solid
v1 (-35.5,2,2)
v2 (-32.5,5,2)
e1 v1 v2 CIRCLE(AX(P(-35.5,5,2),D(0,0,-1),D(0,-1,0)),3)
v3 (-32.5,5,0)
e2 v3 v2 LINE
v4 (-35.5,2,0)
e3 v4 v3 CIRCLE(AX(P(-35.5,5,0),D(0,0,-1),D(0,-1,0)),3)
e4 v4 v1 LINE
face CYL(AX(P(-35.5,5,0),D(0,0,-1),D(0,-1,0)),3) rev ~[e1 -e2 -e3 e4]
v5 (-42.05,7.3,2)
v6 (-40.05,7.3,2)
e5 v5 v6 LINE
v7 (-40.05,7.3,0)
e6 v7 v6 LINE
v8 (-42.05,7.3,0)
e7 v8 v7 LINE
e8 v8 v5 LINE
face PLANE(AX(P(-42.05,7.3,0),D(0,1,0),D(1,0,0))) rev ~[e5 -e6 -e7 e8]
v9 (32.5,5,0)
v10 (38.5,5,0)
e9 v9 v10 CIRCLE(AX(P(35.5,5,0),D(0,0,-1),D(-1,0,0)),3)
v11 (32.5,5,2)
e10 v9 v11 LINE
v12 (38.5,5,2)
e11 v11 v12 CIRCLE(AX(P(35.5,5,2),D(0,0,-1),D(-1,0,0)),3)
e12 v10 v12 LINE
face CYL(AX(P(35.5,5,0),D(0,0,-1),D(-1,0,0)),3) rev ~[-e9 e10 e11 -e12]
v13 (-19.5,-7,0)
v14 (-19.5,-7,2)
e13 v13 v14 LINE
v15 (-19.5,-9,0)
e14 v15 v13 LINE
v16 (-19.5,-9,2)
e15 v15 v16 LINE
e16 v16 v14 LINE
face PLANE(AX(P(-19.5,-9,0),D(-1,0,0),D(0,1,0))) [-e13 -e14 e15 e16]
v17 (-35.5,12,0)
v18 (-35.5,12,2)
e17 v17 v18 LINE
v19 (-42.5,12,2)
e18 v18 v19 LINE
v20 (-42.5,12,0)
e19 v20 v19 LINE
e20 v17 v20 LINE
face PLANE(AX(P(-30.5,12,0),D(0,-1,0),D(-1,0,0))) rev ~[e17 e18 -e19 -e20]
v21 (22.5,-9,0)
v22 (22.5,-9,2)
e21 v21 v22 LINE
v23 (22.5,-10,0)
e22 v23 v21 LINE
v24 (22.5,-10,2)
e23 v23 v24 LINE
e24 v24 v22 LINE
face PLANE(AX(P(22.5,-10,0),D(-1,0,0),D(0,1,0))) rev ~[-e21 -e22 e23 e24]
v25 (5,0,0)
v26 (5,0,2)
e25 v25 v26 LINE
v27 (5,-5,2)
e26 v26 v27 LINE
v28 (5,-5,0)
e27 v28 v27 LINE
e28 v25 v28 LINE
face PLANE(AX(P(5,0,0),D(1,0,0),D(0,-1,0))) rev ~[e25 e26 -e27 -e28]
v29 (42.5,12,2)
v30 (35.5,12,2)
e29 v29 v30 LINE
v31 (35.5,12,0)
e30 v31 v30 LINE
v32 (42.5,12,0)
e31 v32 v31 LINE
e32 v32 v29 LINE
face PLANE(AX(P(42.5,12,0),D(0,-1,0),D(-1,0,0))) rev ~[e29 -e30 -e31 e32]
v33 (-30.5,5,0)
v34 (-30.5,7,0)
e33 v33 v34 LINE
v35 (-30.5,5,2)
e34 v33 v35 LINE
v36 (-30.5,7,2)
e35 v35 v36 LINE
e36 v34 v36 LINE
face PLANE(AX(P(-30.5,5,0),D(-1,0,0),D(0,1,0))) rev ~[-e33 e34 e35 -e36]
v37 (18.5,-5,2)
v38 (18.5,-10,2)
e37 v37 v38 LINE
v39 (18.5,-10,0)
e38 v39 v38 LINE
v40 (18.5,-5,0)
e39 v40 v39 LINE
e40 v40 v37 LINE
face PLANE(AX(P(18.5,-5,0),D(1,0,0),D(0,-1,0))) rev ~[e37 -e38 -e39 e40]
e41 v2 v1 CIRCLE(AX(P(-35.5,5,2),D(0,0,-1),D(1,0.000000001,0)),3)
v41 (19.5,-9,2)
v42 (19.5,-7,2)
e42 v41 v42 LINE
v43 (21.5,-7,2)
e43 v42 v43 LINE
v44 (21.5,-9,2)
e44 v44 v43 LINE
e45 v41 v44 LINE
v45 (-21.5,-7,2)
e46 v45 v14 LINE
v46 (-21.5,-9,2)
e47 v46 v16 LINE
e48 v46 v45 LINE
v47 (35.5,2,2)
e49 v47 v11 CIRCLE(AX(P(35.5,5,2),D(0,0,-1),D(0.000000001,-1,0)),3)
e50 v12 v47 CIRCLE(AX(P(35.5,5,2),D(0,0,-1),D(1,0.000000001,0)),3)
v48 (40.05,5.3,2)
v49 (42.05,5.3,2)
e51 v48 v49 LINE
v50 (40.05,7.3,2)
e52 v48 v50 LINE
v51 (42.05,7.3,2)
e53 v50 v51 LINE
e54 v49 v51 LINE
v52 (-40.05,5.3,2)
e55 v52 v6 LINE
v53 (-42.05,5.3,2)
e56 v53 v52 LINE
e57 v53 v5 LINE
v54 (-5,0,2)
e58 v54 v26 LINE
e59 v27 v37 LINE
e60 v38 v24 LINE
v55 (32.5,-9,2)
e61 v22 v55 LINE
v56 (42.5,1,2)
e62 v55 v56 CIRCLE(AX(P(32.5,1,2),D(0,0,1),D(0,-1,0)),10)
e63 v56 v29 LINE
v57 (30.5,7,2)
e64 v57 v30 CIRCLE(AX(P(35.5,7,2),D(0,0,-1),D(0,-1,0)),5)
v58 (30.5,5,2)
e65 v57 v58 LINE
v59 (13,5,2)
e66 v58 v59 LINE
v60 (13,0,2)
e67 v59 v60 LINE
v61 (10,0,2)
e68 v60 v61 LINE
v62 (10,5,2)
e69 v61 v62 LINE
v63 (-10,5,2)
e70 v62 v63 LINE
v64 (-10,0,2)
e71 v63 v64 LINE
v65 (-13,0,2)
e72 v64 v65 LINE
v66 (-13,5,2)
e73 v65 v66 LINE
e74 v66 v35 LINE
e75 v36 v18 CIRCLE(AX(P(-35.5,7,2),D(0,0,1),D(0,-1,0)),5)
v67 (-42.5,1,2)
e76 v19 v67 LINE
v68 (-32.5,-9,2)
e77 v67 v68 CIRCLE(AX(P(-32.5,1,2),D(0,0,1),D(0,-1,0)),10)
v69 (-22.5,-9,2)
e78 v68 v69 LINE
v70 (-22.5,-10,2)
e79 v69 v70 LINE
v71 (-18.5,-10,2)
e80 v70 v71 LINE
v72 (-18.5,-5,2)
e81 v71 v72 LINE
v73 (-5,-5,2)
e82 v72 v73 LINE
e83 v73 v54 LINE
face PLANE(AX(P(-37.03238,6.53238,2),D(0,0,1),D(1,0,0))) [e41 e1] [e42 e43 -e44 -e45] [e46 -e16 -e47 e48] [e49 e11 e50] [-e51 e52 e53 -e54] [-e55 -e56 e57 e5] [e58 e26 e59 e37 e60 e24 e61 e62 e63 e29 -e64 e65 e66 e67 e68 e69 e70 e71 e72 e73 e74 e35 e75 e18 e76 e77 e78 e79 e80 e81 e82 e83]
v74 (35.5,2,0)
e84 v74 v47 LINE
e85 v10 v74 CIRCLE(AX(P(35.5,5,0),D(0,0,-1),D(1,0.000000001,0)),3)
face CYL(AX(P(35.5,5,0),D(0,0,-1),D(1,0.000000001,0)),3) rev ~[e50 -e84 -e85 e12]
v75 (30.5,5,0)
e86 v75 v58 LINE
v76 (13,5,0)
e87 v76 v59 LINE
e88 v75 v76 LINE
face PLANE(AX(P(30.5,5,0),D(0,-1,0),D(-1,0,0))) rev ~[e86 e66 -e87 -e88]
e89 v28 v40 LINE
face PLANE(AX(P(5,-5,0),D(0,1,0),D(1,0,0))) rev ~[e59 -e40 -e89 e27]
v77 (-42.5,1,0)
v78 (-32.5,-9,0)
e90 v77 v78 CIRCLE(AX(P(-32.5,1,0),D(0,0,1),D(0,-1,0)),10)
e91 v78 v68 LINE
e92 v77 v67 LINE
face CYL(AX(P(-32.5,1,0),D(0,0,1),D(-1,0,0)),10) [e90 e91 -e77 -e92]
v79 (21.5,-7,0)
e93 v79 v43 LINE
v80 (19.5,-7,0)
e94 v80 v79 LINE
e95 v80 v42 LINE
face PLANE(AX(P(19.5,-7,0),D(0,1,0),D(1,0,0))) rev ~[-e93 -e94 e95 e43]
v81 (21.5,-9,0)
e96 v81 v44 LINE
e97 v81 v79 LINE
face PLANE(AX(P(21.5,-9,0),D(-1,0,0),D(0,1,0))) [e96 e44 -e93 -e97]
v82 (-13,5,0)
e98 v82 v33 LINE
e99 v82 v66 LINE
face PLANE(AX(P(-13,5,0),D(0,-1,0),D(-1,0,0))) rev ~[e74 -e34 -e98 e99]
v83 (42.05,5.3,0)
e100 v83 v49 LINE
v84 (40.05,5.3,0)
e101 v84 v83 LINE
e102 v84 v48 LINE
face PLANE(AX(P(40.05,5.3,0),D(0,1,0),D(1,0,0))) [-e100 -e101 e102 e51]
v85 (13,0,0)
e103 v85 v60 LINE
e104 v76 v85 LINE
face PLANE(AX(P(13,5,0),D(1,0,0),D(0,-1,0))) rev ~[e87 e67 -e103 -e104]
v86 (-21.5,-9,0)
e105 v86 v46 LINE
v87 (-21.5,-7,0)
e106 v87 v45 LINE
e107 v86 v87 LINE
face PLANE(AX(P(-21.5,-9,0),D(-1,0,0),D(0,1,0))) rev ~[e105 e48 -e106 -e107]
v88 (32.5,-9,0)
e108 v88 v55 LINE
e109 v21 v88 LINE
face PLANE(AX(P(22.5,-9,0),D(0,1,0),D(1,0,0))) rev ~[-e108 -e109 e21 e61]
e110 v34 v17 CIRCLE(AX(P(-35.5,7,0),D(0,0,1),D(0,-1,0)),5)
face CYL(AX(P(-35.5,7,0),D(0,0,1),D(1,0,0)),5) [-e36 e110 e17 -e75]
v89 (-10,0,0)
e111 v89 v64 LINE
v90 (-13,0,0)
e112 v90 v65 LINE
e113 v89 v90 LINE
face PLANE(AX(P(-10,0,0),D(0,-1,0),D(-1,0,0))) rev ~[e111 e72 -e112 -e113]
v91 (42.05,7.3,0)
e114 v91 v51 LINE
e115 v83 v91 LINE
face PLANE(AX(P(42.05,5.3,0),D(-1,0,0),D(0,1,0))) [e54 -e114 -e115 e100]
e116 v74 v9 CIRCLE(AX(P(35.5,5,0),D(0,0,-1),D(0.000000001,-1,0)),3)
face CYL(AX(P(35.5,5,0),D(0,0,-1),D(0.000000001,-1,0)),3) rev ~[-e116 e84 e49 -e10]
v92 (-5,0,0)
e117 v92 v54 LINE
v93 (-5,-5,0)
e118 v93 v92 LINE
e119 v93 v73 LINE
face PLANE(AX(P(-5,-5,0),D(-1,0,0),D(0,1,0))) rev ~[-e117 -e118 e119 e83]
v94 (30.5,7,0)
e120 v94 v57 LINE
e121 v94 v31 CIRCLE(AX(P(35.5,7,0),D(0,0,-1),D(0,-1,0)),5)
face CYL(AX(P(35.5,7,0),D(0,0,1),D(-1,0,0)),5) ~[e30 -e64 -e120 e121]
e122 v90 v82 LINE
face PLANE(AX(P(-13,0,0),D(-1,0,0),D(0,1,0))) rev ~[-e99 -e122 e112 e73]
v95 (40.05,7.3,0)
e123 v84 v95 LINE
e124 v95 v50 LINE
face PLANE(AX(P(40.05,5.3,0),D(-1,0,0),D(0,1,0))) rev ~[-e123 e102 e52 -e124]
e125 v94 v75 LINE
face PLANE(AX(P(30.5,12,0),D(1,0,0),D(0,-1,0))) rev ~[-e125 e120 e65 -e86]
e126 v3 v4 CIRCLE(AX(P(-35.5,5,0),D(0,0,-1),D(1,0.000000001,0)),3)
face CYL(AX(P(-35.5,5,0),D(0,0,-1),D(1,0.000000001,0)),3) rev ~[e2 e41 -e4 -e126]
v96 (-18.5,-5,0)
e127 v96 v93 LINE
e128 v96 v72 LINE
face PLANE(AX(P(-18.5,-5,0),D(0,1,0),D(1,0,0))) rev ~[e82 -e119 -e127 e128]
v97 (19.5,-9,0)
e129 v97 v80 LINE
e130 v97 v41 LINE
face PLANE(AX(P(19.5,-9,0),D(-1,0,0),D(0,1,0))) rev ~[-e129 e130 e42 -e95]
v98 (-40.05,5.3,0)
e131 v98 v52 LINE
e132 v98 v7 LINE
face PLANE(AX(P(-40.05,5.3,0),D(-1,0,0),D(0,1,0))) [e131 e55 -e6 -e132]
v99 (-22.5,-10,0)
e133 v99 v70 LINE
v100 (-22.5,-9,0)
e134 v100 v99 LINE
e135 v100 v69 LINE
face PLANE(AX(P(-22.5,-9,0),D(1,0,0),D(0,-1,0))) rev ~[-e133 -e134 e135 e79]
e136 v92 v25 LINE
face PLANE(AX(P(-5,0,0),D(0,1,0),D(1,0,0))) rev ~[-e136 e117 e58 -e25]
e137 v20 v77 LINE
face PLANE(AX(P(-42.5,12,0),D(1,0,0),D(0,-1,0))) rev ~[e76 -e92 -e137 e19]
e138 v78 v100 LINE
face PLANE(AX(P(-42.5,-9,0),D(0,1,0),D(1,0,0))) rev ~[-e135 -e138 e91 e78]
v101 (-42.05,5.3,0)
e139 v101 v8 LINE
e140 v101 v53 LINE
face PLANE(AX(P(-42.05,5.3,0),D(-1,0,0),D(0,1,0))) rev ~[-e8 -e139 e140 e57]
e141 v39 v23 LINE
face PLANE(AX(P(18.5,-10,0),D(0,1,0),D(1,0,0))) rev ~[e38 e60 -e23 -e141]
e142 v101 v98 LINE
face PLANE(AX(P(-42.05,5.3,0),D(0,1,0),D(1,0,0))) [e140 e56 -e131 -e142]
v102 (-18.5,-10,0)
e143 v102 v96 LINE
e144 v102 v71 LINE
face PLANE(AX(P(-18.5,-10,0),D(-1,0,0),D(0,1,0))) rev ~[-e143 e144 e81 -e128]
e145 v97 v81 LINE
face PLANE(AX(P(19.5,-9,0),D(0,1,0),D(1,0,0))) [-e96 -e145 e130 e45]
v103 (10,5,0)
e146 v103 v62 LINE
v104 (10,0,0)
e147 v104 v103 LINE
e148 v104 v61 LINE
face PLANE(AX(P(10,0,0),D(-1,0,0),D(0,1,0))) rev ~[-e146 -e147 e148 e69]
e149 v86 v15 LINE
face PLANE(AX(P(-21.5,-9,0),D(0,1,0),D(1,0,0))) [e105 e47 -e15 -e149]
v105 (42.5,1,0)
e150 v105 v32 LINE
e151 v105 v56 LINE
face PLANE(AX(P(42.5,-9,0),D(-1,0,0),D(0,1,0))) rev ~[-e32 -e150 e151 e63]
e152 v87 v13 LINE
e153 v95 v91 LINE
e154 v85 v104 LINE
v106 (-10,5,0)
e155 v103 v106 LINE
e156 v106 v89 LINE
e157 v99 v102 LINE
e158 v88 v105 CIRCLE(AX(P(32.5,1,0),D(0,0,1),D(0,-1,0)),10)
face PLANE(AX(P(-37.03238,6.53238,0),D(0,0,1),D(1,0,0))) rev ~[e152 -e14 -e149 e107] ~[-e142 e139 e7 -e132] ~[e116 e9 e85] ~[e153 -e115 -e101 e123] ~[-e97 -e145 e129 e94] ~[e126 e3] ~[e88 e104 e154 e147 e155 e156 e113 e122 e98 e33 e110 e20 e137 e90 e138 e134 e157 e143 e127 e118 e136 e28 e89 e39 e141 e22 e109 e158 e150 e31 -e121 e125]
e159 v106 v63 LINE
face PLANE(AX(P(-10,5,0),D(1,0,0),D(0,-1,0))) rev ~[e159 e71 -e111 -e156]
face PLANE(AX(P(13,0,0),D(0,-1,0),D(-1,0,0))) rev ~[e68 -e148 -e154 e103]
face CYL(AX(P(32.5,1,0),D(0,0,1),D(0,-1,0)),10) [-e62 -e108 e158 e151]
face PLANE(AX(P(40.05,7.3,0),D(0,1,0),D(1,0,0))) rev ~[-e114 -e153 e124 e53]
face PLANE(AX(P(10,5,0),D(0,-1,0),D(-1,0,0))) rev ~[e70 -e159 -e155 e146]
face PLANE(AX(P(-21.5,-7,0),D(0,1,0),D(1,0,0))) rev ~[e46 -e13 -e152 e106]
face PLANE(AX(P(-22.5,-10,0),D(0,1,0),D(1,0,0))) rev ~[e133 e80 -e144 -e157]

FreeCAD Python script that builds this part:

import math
import FreeCAD as App
import Part
import Sketcher
from FreeCAD import Vector


def edges_at(feature, points):
    """Names of the edges that pass closest to the given points."""
    edges = feature.Shape.Edges
    near = lambda p: min(range(len(edges)), key=lambda i: edges[i].distToShape(Part.Vertex(*p))[0])
    return sorted({f"Edge{near(p) + 1}" for p in points})

doc = App.newDocument("Part")
params = doc.addObject("Spreadsheet::Sheet", "Params")
for row, (alias, value) in enumerate([
    ("sketch1_radius", "3 mm"),
    ("sketch1_width", "20 mm"),
    ("sketch1_width2", "4 mm"),
    ("sketch1_width3", "10 mm"),
    ("sketch1_width4", "12 mm"),
    ("pad1_length", "2 mm"),
    ("fillet_radius", "10 mm"),
    ("fillet2_radius", "10 mm"),
    ("fillet3_radius", "5 mm"),
    ("fillet4_radius", "5 mm"),
], start=1):
    params.set(f"A{row}", alias)
    params.set(f"B{row}", "=" + value)
    params.setAlias(f"B{row}", alias)

body = doc.addObject("PartDesign::Body", "Body")

sketch1 = body.newObject("Sketcher::SketchObject", "Sketch")
sketch1.AttachmentSupport = (doc.getObject("XY_Plane"), [""])
sketch1.MapMode = "FlatFace"
sketch1.addGeometry([
    Part.LineSegment(Vector(-42.5, 12, 0), Vector(-42.5, -9, 0)),
    Part.LineSegment(Vector(-42.5, -9, 0), Vector(-22.5, -9, 0)),
    Part.LineSegment(Vector(-22.5, -9, 0), Vector(-22.5, -10, 0)),
    Part.LineSegment(Vector(-22.5, -10, 0), Vector(-18.5, -10, 0)),
    Part.LineSegment(Vector(-18.5, -10, 0), Vector(-18.5, -5, 0)),
    Part.LineSegment(Vector(-18.5, -5, 0), Vector(-5, -5, 0)),
    Part.LineSegment(Vector(-5, -5, 0), Vector(-5, 0, 0)),
    Part.LineSegment(Vector(-5, 0, 0), Vector(5, 0, 0)),
    Part.LineSegment(Vector(5, 0, 0), Vector(5, -5, 0)),
    Part.LineSegment(Vector(5, -5, 0), Vector(18.5, -5, 0)),
    Part.LineSegment(Vector(18.5, -5, 0), Vector(18.5, -10, 0)),
    Part.LineSegment(Vector(18.5, -10, 0), Vector(22.5, -10, 0)),
    Part.LineSegment(Vector(22.5, -10, 0), Vector(22.5, -9, 0)),
    Part.LineSegment(Vector(22.5, -9, 0), Vector(42.5, -9, 0)),
    Part.LineSegment(Vector(42.5, -9, 0), Vector(42.5, 12, 0)),
    Part.LineSegment(Vector(42.5, 12, 0), Vector(30.5, 12, 0)),
    Part.LineSegment(Vector(30.5, 12, 0), Vector(30.5, 5, 0)),
    Part.LineSegment(Vector(30.5, 5, 0), Vector(13, 5, 0)),
    Part.LineSegment(Vector(13, 5, 0), Vector(13, 0, 0)),
    Part.LineSegment(Vector(13, 0, 0), Vector(10, 0, 0)),
    Part.LineSegment(Vector(10, 0, 0), Vector(10, 5, 0)),
    Part.LineSegment(Vector(10, 5, 0), Vector(-10, 5, 0)),
    Part.LineSegment(Vector(-10, 5, 0), Vector(-10, 0, 0)),
    Part.LineSegment(Vector(-10, 0, 0), Vector(-13, 0, 0)),
    Part.LineSegment(Vector(-13, 0, 0), Vector(-13, 5, 0)),
    Part.LineSegment(Vector(-13, 5, 0), Vector(-30.5, 5, 0)),
    Part.LineSegment(Vector(-30.5, 5, 0), Vector(-30.5, 12, 0)),
    Part.LineSegment(Vector(-30.5, 12, 0), Vector(-42.5, 12, 0)),
    Part.ArcOfCircle(Part.Circle(Vector(-35.5, 5, 0), Vector(0, 0, 1), 3), math.radians(0), math.radians(270)),
    Part.ArcOfCircle(Part.Circle(Vector(-35.5, 5, 0), Vector(0, 0, 1), 3), math.radians(-90), math.radians(0)),
    Part.LineSegment(Vector(-40.05, 5.3, 0), Vector(-42.05, 5.3, 0)),
    Part.LineSegment(Vector(-42.05, 5.3, 0), Vector(-42.05, 7.3, 0)),
    Part.LineSegment(Vector(-42.05, 7.3, 0), Vector(-40.05, 7.3, 0)),
    Part.LineSegment(Vector(-40.05, 7.3, 0), Vector(-40.05, 5.3, 0)),
    Part.LineSegment(Vector(-21.5, -9, 0), Vector(-21.5, -7, 0)),
    Part.LineSegment(Vector(-21.5, -7, 0), Vector(-19.5, -7, 0)),
    Part.LineSegment(Vector(-19.5, -7, 0), Vector(-19.5, -9, 0)),
    Part.LineSegment(Vector(-19.5, -9, 0), Vector(-21.5, -9, 0)),
    Part.ArcOfCircle(Part.Circle(Vector(35.5, 5, 0), Vector(0, 0, 1), 3), math.radians(180), math.radians(270)),
    Part.ArcOfCircle(Part.Circle(Vector(35.5, 5, 0), Vector(0, 0, 1), 3), math.radians(0), math.radians(180)),
    Part.ArcOfCircle(Part.Circle(Vector(35.5, 5, 0), Vector(0, 0, 1), 3), math.radians(-90), math.radians(0)),
    Part.LineSegment(Vector(40.05, 5.3, 0), Vector(40.05, 7.3, 0)),
    Part.LineSegment(Vector(40.05, 7.3, 0), Vector(42.05, 7.3, 0)),
    Part.LineSegment(Vector(42.05, 7.3, 0), Vector(42.05, 5.3, 0)),
    Part.LineSegment(Vector(42.05, 5.3, 0), Vector(40.05, 5.3, 0)),
    Part.LineSegment(Vector(21.5, -9, 0), Vector(19.5, -9, 0)),
    Part.LineSegment(Vector(19.5, -9, 0), Vector(19.5, -7, 0)),
    Part.LineSegment(Vector(19.5, -7, 0), Vector(21.5, -7, 0)),
    Part.LineSegment(Vector(21.5, -7, 0), Vector(21.5, -9, 0)),
], False)
sketch1.addConstraint([
    Sketcher.Constraint("Coincident", 0, 2, 1, 1),
    Sketcher.Constraint("Coincident", 1, 2, 2, 1),
    Sketcher.Constraint("Coincident", 2, 2, 3, 1),
    Sketcher.Constraint("Coincident", 3, 2, 4, 1),
    Sketcher.Constraint("Coincident", 4, 2, 5, 1),
    Sketcher.Constraint("Coincident", 5, 2, 6, 1),
    Sketcher.Constraint("Coincident", 6, 2, 7, 1),
    Sketcher.Constraint("Coincident", 7, 2, 8, 1),
    Sketcher.Constraint("Coincident", 8, 2, 9, 1),
    Sketcher.Constraint("Coincident", 9, 2, 10, 1),
    Sketcher.Constraint("Coincident", 10, 2, 11, 1),
    Sketcher.Constraint("Coincident", 11, 2, 12, 1),
    Sketcher.Constraint("Coincident", 12, 2, 13, 1),
    Sketcher.Constraint("Coincident", 13, 2, 14, 1),
    Sketcher.Constraint("Coincident", 14, 2, 15, 1),
    Sketcher.Constraint("Coincident", 15, 2, 16, 1),
    Sketcher.Constraint("Coincident", 16, 2, 17, 1),
    Sketcher.Constraint("Coincident", 17, 2, 18, 1),
    Sketcher.Constraint("Coincident", 18, 2, 19, 1),
    Sketcher.Constraint("Coincident", 19, 2, 20, 1),
    Sketcher.Constraint("Coincident", 20, 2, 21, 1),
    Sketcher.Constraint("Coincident", 21, 2, 22, 1),
    Sketcher.Constraint("Coincident", 22, 2, 23, 1),
    Sketcher.Constraint("Coincident", 23, 2, 24, 1),
    Sketcher.Constraint("Coincident", 24, 2, 25, 1),
    Sketcher.Constraint("Coincident", 25, 2, 26, 1),
    Sketcher.Constraint("Coincident", 26, 2, 27, 1),
    Sketcher.Constraint("Coincident", 27, 2, 0, 1),
    Sketcher.Constraint("Tangent", 28, 1, 29, 2),
    Sketcher.Constraint("Coincident", 29, 1, 28, 2),
    Sketcher.Constraint("Coincident", 30, 2, 31, 1),
    Sketcher.Constraint("Coincident", 31, 2, 32, 1),
    Sketcher.Constraint("Coincident", 32, 2, 33, 1),
    Sketcher.Constraint("Coincident", 33, 2, 30, 1),
    Sketcher.Constraint("Coincident", 34, 2, 35, 1),
    Sketcher.Constraint("Coincident", 35, 2, 36, 1),
    Sketcher.Constraint("Coincident", 36, 2, 37, 1),
    Sketcher.Constraint("Coincident", 37, 2, 34, 1),
    Sketcher.Constraint("Tangent", 38, 1, 39, 2),
    Sketcher.Constraint("Tangent", 39, 1, 40, 2),
    Sketcher.Constraint("Tangent", 40, 1, 38, 2),
    Sketcher.Constraint("Coincident", 41, 2, 42, 1),
    Sketcher.Constraint("Coincident", 42, 2, 43, 1),
    Sketcher.Constraint("Coincident", 43, 2, 44, 1),
    Sketcher.Constraint("Coincident", 44, 2, 41, 1),
    Sketcher.Constraint("Coincident", 45, 2, 46, 1),
    Sketcher.Constraint("Coincident", 46, 2, 47, 1),
    Sketcher.Constraint("Coincident", 47, 2, 48, 1),
    Sketcher.Constraint("Coincident", 48, 2, 45, 1),
    Sketcher.Constraint("Vertical", 0),
    Sketcher.Constraint("Horizontal", 1),
    Sketcher.Constraint("Vertical", 2),
    Sketcher.Constraint("Horizontal", 3),
    Sketcher.Constraint("Vertical", 4),
    Sketcher.Constraint("Horizontal", 5),
    Sketcher.Constraint("Vertical", 6),
    Sketcher.Constraint("Horizontal", 7),
    Sketcher.Constraint("Vertical", 8),
    Sketcher.Constraint("Horizontal", 9),
    Sketcher.Constraint("Vertical", 10),
    Sketcher.Constraint("Horizontal", 11),
    Sketcher.Constraint("Vertical", 12),
    Sketcher.Constraint("Horizontal", 13),
    Sketcher.Constraint("Vertical", 14),
    Sketcher.Constraint("Horizontal", 15),
    Sketcher.Constraint("Vertical", 16),
    Sketcher.Constraint("Horizontal", 17),
    Sketcher.Constraint("Vertical", 18),
    Sketcher.Constraint("Horizontal", 19),
    Sketcher.Constraint("Vertical", 20),
    Sketcher.Constraint("Horizontal", 21),
    Sketcher.Constraint("Vertical", 22),
    Sketcher.Constraint("Horizontal", 23),
    Sketcher.Constraint("Vertical", 24),
    Sketcher.Constraint("Horizontal", 25),
    Sketcher.Constraint("Vertical", 26),
    Sketcher.Constraint("Horizontal", 27),
    Sketcher.Constraint("Horizontal", 30),
    Sketcher.Constraint("Vertical", 31),
    Sketcher.Constraint("Horizontal", 32),
    Sketcher.Constraint("Vertical", 33),
    Sketcher.Constraint("Vertical", 34),
    Sketcher.Constraint("Horizontal", 35),
    Sketcher.Constraint("Vertical", 36),
    Sketcher.Constraint("Horizontal", 37),
    Sketcher.Constraint("Vertical", 41),
    Sketcher.Constraint("Horizontal", 42),
    Sketcher.Constraint("Vertical", 43),
    Sketcher.Constraint("Horizontal", 44),
    Sketcher.Constraint("Horizontal", 45),
    Sketcher.Constraint("Vertical", 46),
    Sketcher.Constraint("Horizontal", 47),
    Sketcher.Constraint("Vertical", 48),
    Sketcher.Constraint("Equal", 29, 38),
    Sketcher.Constraint("Symmetric", 6, 2, 7, 2, -1, 1),
    Sketcher.Constraint("Symmetric", 19, 2, 22, 2, -1, 1),
    Sketcher.Constraint("Symmetric", 28, 3, 38, 3, -2),
    Sketcher.Constraint("Symmetric", 4, 2, 9, 2, -2),
    Sketcher.Constraint("Symmetric", 2, 2, 11, 2, -2),
    Sketcher.Constraint("Symmetric", 0, 2, 13, 2, -2),
    Sketcher.Constraint("Symmetric", 18, 2, 23, 2, -2),
    Sketcher.Constraint("Symmetric", 16, 2, 25, 2, -2),
    Sketcher.Constraint("Symmetric", 32, 2, 41, 2, -2),
    Sketcher.Constraint("Symmetric", 30, 2, 43, 2, -2),
    Sketcher.Constraint("Symmetric", 36, 2, 45, 2, -2),
    Sketcher.Constraint("Symmetric", 34, 2, 47, 2, -2),
    Sketcher.Constraint("Horizontal", 40, 3, 16, 2),
    Sketcher.Constraint("Horizontal", 17, 2, 20, 2),
    Sketcher.Constraint("Horizontal", 15, 2, 26, 2),
    Sketcher.Constraint("Horizontal", 25, 2, 28, 1),
    Sketcher.Constraint("Horizontal", 13, 2, 36, 2),
    Sketcher.Constraint("Horizontal", 28, 1, 38, 1),
    Sketcher.Constraint("Horizontal", 38, 1, 39, 1),
    Sketcher.Constraint("Vertical", 28, 3, 29, 1),
    Sketcher.Constraint("Vertical", 39, 3, 40, 1),
    Sketcher.Constraint("Equal", 13, 21),
    Sketcher.Constraint("Equal", 32, 35),
    Sketcher.Constraint("Equal", 4, 6),
    Sketcher.Constraint("Equal", 10, 18),
    Sketcher.Constraint("Equal", 47, 31),
    Sketcher.Constraint("Equal", 33, 34),
    Sketcher.Constraint("Radius", 28, 3.0),
    Sketcher.Constraint("DistanceX", 1, 1, 1, 2, 20.0),
    Sketcher.Constraint("DistanceX", 3, 1, 3, 2, 4.0),
    Sketcher.Constraint("DistanceX", 7, 1, 7, 2, 10.0),
    Sketcher.Constraint("DistanceX", 15, 2, 15, 1, 12.0),
    Sketcher.Constraint("DistanceX", 19, 2, 19, 1, 3.0),
    Sketcher.Constraint("DistanceX", 30, 2, 30, 1, 2.0),
    Sketcher.Constraint("DistanceY", 0, 2, 0, 1, 21.0),
    Sketcher.Constraint("DistanceY", 2, 2, 2, 1, 1.0),
    Sketcher.Constraint("DistanceY", 4, 1, 4, 2, 5.0),
    Sketcher.Constraint("DistanceX", 5, 1, 5, 2, 13.5),
    Sketcher.Constraint("DistanceX", 29, 3, 38, 3, 71.0),
    Sketcher.Constraint("DistanceX", 1, 2, 34, 2, 1.0),
    Sketcher.Constraint("DistanceY", -1, 1, 30, 2, 5.3),
    Sketcher.Constraint("DistanceX", 30, 2, -1, 1, 42.05),
])
sketch1.setExpression("Constraints[121]", "Params.sketch1_radius")
sketch1.setExpression("Constraints[122]", "Params.sketch1_width")
sketch1.setExpression("Constraints[123]", "Params.sketch1_width2")
sketch1.setExpression("Constraints[124]", "Params.sketch1_width3")
sketch1.setExpression("Constraints[125]", "Params.sketch1_width4")
pad1 = body.newObject("PartDesign::Pad", "Pad")
pad1.Profile = sketch1
pad1.setExpression("Length", "Params.pad1_length")
doc.recompute()

fillet = body.newObject("PartDesign::Fillet", "Fillet")
fillet.Base = (pad1, edges_at(pad1, [(-42.5, -9, 1)]))
fillet.setExpression("Radius", "Params.fillet_radius")
doc.recompute()

fillet2 = body.newObject("PartDesign::Fillet", "Fillet001")
fillet2.Base = (fillet, edges_at(fillet, [(42.5, -9, 1)]))
fillet2.setExpression("Radius", "Params.fillet2_radius")
doc.recompute()

fillet3 = body.newObject("PartDesign::Fillet", "Fillet002")
fillet3.Base = (fillet2, edges_at(fillet2, [(-30.5, 12, 1)]))
fillet3.setExpression("Radius", "Params.fillet3_radius")
doc.recompute()

fillet4 = body.newObject("PartDesign::Fillet", "Fillet003")
fillet4.Base = (fillet3, edges_at(fillet3, [(30.5, 12, 1)]))
fillet4.setExpression("Radius", "Params.fillet4_radius")

doc.recompute()
